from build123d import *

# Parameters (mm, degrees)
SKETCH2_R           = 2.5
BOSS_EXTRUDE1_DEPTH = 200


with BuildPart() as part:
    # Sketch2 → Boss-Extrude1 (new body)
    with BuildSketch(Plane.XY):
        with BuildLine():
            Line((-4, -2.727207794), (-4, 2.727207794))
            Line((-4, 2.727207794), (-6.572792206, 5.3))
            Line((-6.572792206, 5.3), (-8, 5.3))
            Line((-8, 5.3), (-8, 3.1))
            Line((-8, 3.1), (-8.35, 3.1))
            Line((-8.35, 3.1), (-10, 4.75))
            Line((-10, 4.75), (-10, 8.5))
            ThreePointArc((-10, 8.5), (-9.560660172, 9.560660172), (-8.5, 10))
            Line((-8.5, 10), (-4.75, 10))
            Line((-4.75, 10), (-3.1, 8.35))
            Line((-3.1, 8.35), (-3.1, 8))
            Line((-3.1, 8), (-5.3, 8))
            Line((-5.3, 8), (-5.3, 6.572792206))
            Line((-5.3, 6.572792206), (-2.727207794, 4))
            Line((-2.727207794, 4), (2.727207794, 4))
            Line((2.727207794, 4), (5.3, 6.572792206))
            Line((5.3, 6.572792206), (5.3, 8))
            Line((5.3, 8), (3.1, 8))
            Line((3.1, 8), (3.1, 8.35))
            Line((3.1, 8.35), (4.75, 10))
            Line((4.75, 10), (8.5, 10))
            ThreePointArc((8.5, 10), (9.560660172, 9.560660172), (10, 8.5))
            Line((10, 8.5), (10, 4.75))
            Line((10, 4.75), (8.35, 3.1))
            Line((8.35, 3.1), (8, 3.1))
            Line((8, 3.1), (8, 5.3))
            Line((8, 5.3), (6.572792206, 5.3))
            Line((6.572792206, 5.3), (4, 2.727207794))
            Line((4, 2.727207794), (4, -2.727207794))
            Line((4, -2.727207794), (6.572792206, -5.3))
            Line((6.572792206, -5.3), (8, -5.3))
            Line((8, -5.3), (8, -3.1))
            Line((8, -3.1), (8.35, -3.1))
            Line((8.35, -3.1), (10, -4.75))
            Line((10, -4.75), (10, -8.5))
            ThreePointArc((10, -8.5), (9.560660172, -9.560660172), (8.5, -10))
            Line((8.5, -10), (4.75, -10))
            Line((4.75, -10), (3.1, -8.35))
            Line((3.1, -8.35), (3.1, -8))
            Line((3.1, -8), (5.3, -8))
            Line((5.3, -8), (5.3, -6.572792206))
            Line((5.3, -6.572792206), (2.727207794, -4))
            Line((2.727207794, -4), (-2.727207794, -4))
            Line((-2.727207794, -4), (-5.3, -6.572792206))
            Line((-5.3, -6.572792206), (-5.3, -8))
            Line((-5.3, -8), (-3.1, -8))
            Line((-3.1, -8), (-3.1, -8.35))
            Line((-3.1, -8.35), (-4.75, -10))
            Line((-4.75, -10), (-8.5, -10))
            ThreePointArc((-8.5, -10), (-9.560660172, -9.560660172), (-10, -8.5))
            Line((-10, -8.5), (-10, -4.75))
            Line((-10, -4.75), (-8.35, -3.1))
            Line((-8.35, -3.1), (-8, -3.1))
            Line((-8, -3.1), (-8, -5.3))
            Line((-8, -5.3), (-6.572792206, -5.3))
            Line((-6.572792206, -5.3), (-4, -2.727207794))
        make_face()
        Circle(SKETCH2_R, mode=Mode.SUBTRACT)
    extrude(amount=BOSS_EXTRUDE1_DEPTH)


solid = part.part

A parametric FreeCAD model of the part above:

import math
import FreeCAD as App
import Part
import Sketcher
Q = App.Units.Quantity

doc = App.newDocument("Part")
body = doc.addObject("PartDesign::Body", "Body")

# Sketch on XY plane
sketch1 = body.newObject("Sketcher::SketchObject", "Sketch")
sketch1.AttachmentSupport = (doc.getObject("XY_Plane"), [""])
sketch1.MapMode = "FlatFace"
sketch1.addGeometry([
    Part.LineSegment(App.Vector(-4, 2.73, 0), App.Vector(-4, -2.73, 0)),  # 0
    Part.LineSegment(App.Vector(-4, -2.73, 0), App.Vector(-6.57, -5.3, 0)),  # 1
    Part.LineSegment(App.Vector(-6.57, -5.3, 0), App.Vector(-8, -5.3, 0)),  # 2
    Part.LineSegment(App.Vector(-8, -5.3, 0), App.Vector(-8, -3.1, 0)),  # 3
    Part.LineSegment(App.Vector(-8, -3.1, 0), App.Vector(-8.35, -3.1, 0)),  # 4
    Part.LineSegment(App.Vector(-8.35, -3.1, 0), App.Vector(-10, -4.75, 0)),  # 5
    Part.LineSegment(App.Vector(-10, -4.75, 0), App.Vector(-10, -8.5, 0)),  # 6
    Part.ArcOfCircle(Part.Circle(App.Vector(-8.5, -8.5, 0), App.Vector(0, 0, 1), 1.5), math.radians(180), math.radians(270)),  # 7
    Part.LineSegment(App.Vector(-8.5, -10, 0), App.Vector(-4.75, -10, 0)),  # 8
    Part.LineSegment(App.Vector(-4.75, -10, 0), App.Vector(-3.1, -8.35, 0)),  # 9
    Part.LineSegment(App.Vector(-3.1, -8.35, 0), App.Vector(-3.1, -8, 0)),  # 10
    Part.LineSegment(App.Vector(-3.1, -8, 0), App.Vector(-5.3, -8, 0)),  # 11
    Part.LineSegment(App.Vector(-5.3, -8, 0), App.Vector(-5.3, -6.57, 0)),  # 12
    Part.LineSegment(App.Vector(-5.3, -6.57, 0), App.Vector(-2.73, -4, 0)),  # 13
    Part.LineSegment(App.Vector(-2.73, -4, 0), App.Vector(2.73, -4, 0)),  # 14
    Part.LineSegment(App.Vector(2.73, -4, 0), App.Vector(5.3, -6.57, 0)),  # 15
    Part.LineSegment(App.Vector(5.3, -6.57, 0), App.Vector(5.3, -8, 0)),  # 16
    Part.LineSegment(App.Vector(5.3, -8, 0), App.Vector(3.1, -8, 0)),  # 17
    Part.LineSegment(App.Vector(3.1, -8, 0), App.Vector(3.1, -8.35, 0)),  # 18
    Part.LineSegment(App.Vector(3.1, -8.35, 0), App.Vector(4.75, -10, 0)),  # 19
    Part.LineSegment(App.Vector(4.75, -10, 0), App.Vector(8.5, -10, 0)),  # 20
    Part.ArcOfCircle(Part.Circle(App.Vector(8.5, -8.5, 0), App.Vector(0, 0, 1), 1.5), math.radians(-90), math.radians(0)),  # 21
    Part.LineSegment(App.Vector(10, -8.5, 0), App.Vector(10, -4.75, 0)),  # 22
    Part.LineSegment(App.Vector(10, -4.75, 0), App.Vector(8.35, -3.1, 0)),  # 23
    Part.LineSegment(App.Vector(8.35, -3.1, 0), App.Vector(8, -3.1, 0)),  # 24
    Part.LineSegment(App.Vector(8, -3.1, 0), App.Vector(8, -5.3, 0)),  # 25
    Part.LineSegment(App.Vector(8, -5.3, 0), App.Vector(6.57, -5.3, 0)),  # 26
    Part.LineSegment(App.Vector(6.57, -5.3, 0), App.Vector(4, -2.73, 0)),  # 27
    Part.LineSegment(App.Vector(4, -2.73, 0), App.Vector(4, 2.73, 0)),  # 28
    Part.LineSegment(App.Vector(4, 2.73, 0), App.Vector(6.57, 5.3, 0)),  # 29
    Part.LineSegment(App.Vector(6.57, 5.3, 0), App.Vector(8, 5.3, 0)),  # 30
    Part.LineSegment(App.Vector(8, 5.3, 0), App.Vector(8, 3.1, 0)),  # 31
    Part.LineSegment(App.Vector(8, 3.1, 0), App.Vector(8.35, 3.1, 0)),  # 32
    Part.LineSegment(App.Vector(8.35, 3.1, 0), App.Vector(10, 4.75, 0)),  # 33
    Part.LineSegment(App.Vector(10, 4.75, 0), App.Vector(10, 8.5, 0)),  # 34
    Part.ArcOfCircle(Part.Circle(App.Vector(8.5, 8.5, 0), App.Vector(0, 0, 1), 1.5), math.radians(0), math.radians(90)),  # 35
    Part.LineSegment(App.Vector(8.5, 10, 0), App.Vector(4.75, 10, 0)),  # 36
    Part.LineSegment(App.Vector(4.75, 10, 0), App.Vector(3.1, 8.35, 0)),  # 37
    Part.LineSegment(App.Vector(3.1, 8.35, 0), App.Vector(3.1, 8, 0)),  # 38
    Part.LineSegment(App.Vector(3.1, 8, 0), App.Vector(5.3, 8, 0)),  # 39
    Part.LineSegment(App.Vector(5.3, 8, 0), App.Vector(5.3, 6.57, 0)),  # 40
    Part.LineSegment(App.Vector(5.3, 6.57, 0), App.Vector(2.73, 4, 0)),  # 41
    Part.LineSegment(App.Vector(2.73, 4, 0), App.Vector(-2.73, 4, 0)),  # 42
    Part.LineSegment(App.Vector(-2.73, 4, 0), App.Vector(-5.3, 6.57, 0)),  # 43
    Part.LineSegment(App.Vector(-5.3, 6.57, 0), App.Vector(-5.3, 8, 0)),  # 44
    Part.LineSegment(App.Vector(-5.3, 8, 0), App.Vector(-3.1, 8, 0)),  # 45
    Part.LineSegment(App.Vector(-3.1, 8, 0), App.Vector(-3.1, 8.35, 0)),  # 46
    Part.LineSegment(App.Vector(-3.1, 8.35, 0), App.Vector(-4.75, 10, 0)),  # 47
    Part.LineSegment(App.Vector(-4.75, 10, 0), App.Vector(-8.5, 10, 0)),  # 48
    Part.ArcOfCircle(Part.Circle(App.Vector(-8.5, 8.5, 0), App.Vector(0, 0, 1), 1.5), math.radians(90), math.radians(180)),  # 49
    Part.LineSegment(App.Vector(-10, 8.5, 0), App.Vector(-10, 4.75, 0)),  # 50
    Part.LineSegment(App.Vector(-10, 4.75, 0), App.Vector(-8.35, 3.1, 0)),  # 51
    Part.LineSegment(App.Vector(-8.35, 3.1, 0), App.Vector(-8, 3.1, 0)),  # 52
    Part.LineSegment(App.Vector(-8, 3.1, 0), App.Vector(-8, 5.3, 0)),  # 53
    Part.LineSegment(App.Vector(-8, 5.3, 0), App.Vector(-6.57, 5.3, 0)),  # 54
    Part.LineSegment(App.Vector(-6.57, 5.3, 0), App.Vector(-4, 2.73, 0)),  # 55
    Part.Circle(App.Vector(0, 0, 0), App.Vector(0, 0, 1), 2.5),  # 56
], False)
sketch1.addConstraint([
    Sketcher.Constraint("Coincident", 0, 2, 1, 1),
    Sketcher.Constraint("Coincident", 1, 2, 2, 1),
    Sketcher.Constraint("Coincident", 2, 2, 3, 1),
    Sketcher.Constraint("Coincident", 3, 2, 4, 1),
    Sketcher.Constraint("Coincident", 4, 2, 5, 1),
    Sketcher.Constraint("Coincident", 5, 2, 6, 1),
    Sketcher.Constraint("Tangent", 6, 2, 7, 1),
    Sketcher.Constraint("Tangent", 7, 2, 8, 1),
    Sketcher.Constraint("Coincident", 8, 2, 9, 1),
    Sketcher.Constraint("Coincident", 9, 2, 10, 1),
    Sketcher.Constraint("Coincident", 10, 2, 11, 1),
    Sketcher.Constraint("Coincident", 11, 2, 12, 1),
    Sketcher.Constraint("Coincident", 12, 2, 13, 1),
    Sketcher.Constraint("Coincident", 13, 2, 14, 1),
    Sketcher.Constraint("Coincident", 14, 2, 15, 1),
    Sketcher.Constraint("Coincident", 15, 2, 16, 1),
    Sketcher.Constraint("Coincident", 16, 2, 17, 1),
    Sketcher.Constraint("Coincident", 17, 2, 18, 1),
    Sketcher.Constraint("Coincident", 18, 2, 19, 1),
    Sketcher.Constraint("Coincident", 19, 2, 20, 1),
    Sketcher.Constraint("Tangent", 20, 2, 21, 1),
    Sketcher.Constraint("Tangent", 21, 2, 22, 1),
    Sketcher.Constraint("Coincident", 22, 2, 23, 1),
    Sketcher.Constraint("Coincident", 23, 2, 24, 1),
    Sketcher.Constraint("Coincident", 24, 2, 25, 1),
    Sketcher.Constraint("Coincident", 25, 2, 26, 1),
    Sketcher.Constraint("Coincident", 26, 2, 27, 1),
    Sketcher.Constraint("Coincident", 27, 2, 28, 1),
    Sketcher.Constraint("Coincident", 28, 2, 29, 1),
    Sketcher.Constraint("Coincident", 29, 2, 30, 1),
    Sketcher.Constraint("Coincident", 30, 2, 31, 1),
    Sketcher.Constraint("Coincident", 31, 2, 32, 1),
    Sketcher.Constraint("Coincident", 32, 2, 33, 1),
    Sketcher.Constraint("Coincident", 33, 2, 34, 1),
    Sketcher.Constraint("Tangent", 34, 2, 35, 1),
    Sketcher.Constraint("Tangent", 35, 2, 36, 1),
    Sketcher.Constraint("Coincident", 36, 2, 37, 1),
    Sketcher.Constraint("Coincident", 37, 2, 38, 1),
    Sketcher.Constraint("Coincident", 38, 2, 39, 1),
    Sketcher.Constraint("Coincident", 39, 2, 40, 1),
    Sketcher.Constraint("Coincident", 40, 2, 41, 1),
    Sketcher.Constraint("Coincident", 41, 2, 42, 1),
    Sketcher.Constraint("Coincident", 42, 2, 43, 1),
    Sketcher.Constraint("Coincident", 43, 2, 44, 1),
    Sketcher.Constraint("Coincident", 44, 2, 45, 1),
    Sketcher.Constraint("Coincident", 45, 2, 46, 1),
    Sketcher.Constraint("Coincident", 46, 2, 47, 1),
    Sketcher.Constraint("Coincident", 47, 2, 48, 1),
    Sketcher.Constraint("Tangent", 48, 2, 49, 1),
    Sketcher.Constraint("Tangent", 49, 2, 50, 1),
    Sketcher.Constraint("Coincident", 50, 2, 51, 1),
    Sketcher.Constraint("Coincident", 51, 2, 52, 1),
    Sketcher.Constraint("Coincident", 52, 2, 53, 1),
    Sketcher.Constraint("Coincident", 53, 2, 54, 1),
    Sketcher.Constraint("Coincident", 54, 2, 55, 1),
    Sketcher.Constraint("Coincident", 55, 2, 0, 1),
    Sketcher.Constraint("Vertical", 0),
    Sketcher.Constraint("Horizontal", 2),
    Sketcher.Constraint("Vertical", 3),
    Sketcher.Constraint("Horizontal", 4),
    Sketcher.Constraint("Vertical", 6),
    Sketcher.Constraint("Horizontal", 8),
    Sketcher.Constraint("Vertical", 10),
    Sketcher.Constraint("Horizontal", 11),
    Sketcher.Constraint("Vertical", 12),
    Sketcher.Constraint("Horizontal", 14),
    Sketcher.Constraint("Vertical", 16),
    Sketcher.Constraint("Horizontal", 17),
    Sketcher.Constraint("Vertical", 18),
    Sketcher.Constraint("Horizontal", 20),
    Sketcher.Constraint("Vertical", 22),
    Sketcher.Constraint("Horizontal", 24),
    Sketcher.Constraint("Vertical", 25),
    Sketcher.Constraint("Horizontal", 26),
    Sketcher.Constraint("Vertical", 28),
    Sketcher.Constraint("Horizontal", 30),
    Sketcher.Constraint("Vertical", 31),
    Sketcher.Constraint("Horizontal", 32),
    Sketcher.Constraint("Vertical", 34),
    Sketcher.Constraint("Horizontal", 36),
    Sketcher.Constraint("Vertical", 38),
    Sketcher.Constraint("Horizontal", 39),
    Sketcher.Constraint("Vertical", 40),
    Sketcher.Constraint("Horizontal", 42),
    Sketcher.Constraint("Vertical", 44),
    Sketcher.Constraint("Horizontal", 45),
    Sketcher.Constraint("Vertical", 46),
    Sketcher.Constraint("Horizontal", 48),
    Sketcher.Constraint("Vertical", 50),
    Sketcher.Constraint("Horizontal", 52),
    Sketcher.Constraint("Vertical", 53),
    Sketcher.Constraint("Horizontal", 54),
    Sketcher.Constraint("Coincident", 56, 3, -1, 1),
    Sketcher.Constraint("Equal", 7, 21),
    Sketcher.Constraint("Equal", 21, 35),
    Sketcher.Constraint("Equal", 35, 49),
    Sketcher.Constraint("Symmetric", 7, 3, 35, 3, -1, 1),
    Sketcher.Constraint("Symmetric", 21, 3, 49, 3, -1, 1),
    Sketcher.Constraint("Symmetric", 0, 2, 28, 2, -1, 1),
    Sketcher.Constraint("Symmetric", 1, 2, 29, 2, -1, 1),
    Sketcher.Constraint("Symmetric", 3, 2, 31, 2, -1, 1),
    Sketcher.Constraint("Symmetric", 9, 2, 37, 2, -1, 1),
    Sketcher.Constraint("Symmetric", 11, 2, 39, 2, -1, 1),
    Sketcher.Constraint("Symmetric", 13, 2, 41, 2, -1, 1),
    Sketcher.Constraint("Symmetric", 15, 2, 43, 2, -1, 1),
    Sketcher.Constraint("Symmetric", 17, 2, 45, 2, -1, 1),
    Sketcher.Constraint("Symmetric", 23, 2, 51, 2, -1, 1),
    Sketcher.Constraint("Symmetric", 25, 2, 53, 2, -1, 1),
    Sketcher.Constraint("Symmetric", 7, 3, 21, 3, -2),
    Sketcher.Constraint("Symmetric", 12, 2, 15, 2, -2),
    Sketcher.Constraint("Symmetric", 10, 2, 17, 2, -2),
    Sketcher.Constraint("Symmetric", 4, 2, 23, 2, -2),
    Sketcher.Constraint("Symmetric", 2, 2, 25, 2, -2),
    Sketcher.Constraint("Parallel", 1, 5),
    Sketcher.Constraint("Parallel", 5, 9),
    Sketcher.Constraint("Parallel", 9, 13),
    Sketcher.Constraint("Perpendicular", 13, 15),
    Sketcher.Constraint("Parallel", 15, 19),
    Sketcher.Constraint("Parallel", 19, 23),
    Sketcher.Constraint("Parallel", 23, 27),
    Sketcher.Constraint("Parallel", 29, 33),
    Sketcher.Constraint("Parallel", 33, 37),
    Sketcher.Constraint("Parallel", 37, 41),
    Sketcher.Constraint("Perpendicular", 41, 43),
    Sketcher.Constraint("Parallel", 43, 47),
    Sketcher.Constraint("Parallel", 47, 51),
    Sketcher.Constraint("Parallel", 51, 55),
    Sketcher.Constraint("Horizontal", 9, 2, 18, 2),
    Sketcher.Constraint("Horizontal", 5, 2, 22, 2),
    Sketcher.Constraint("Horizontal", 0, 2, 27, 2),
    Sketcher.Constraint("Horizontal", 37, 2, 46, 2),
    Sketcher.Constraint("Horizontal", 33, 2, 50, 2),
    Sketcher.Constraint("Horizontal", 28, 2, 55, 2),
    Sketcher.Constraint("Equal", 42, 0),
    Sketcher.Constraint("Equal", 45, 3),
    Sketcher.Constraint("Equal", 48, 6),
    Sketcher.Constraint("Equal", 52, 10),
    Sketcher.Constraint("Equal", 54, 12),
    Sketcher.Constraint("Equal", 5, 9),
    Sketcher.Constraint("Equal", 1, 13),
    Sketcher.Constraint("Diameter", 56, Q("5 mm")),
    Sketcher.Constraint("Radius", 7, Q("1.5 mm")),
    Sketcher.Constraint("DistanceX", 11, 2, 11, 1, Q("2.2 mm")),
    Sketcher.Constraint("DistanceX", 0, 2, -1, 1, Q("4 mm")),
    Sketcher.Constraint("DistanceX", 2, 2, -1, 1, Q("8 mm")),
    Sketcher.Constraint("DistanceX", 5, 2, -1, 1, Q("10 mm")),
    Sketcher.Constraint("DistanceX", 4, 2, 4, 1, Q("0.35 mm")),
    Sketcher.Constraint("DistanceX", 8, 1, 8, 2, Q("3.75 mm")),
    Sketcher.Constraint("DistanceX", 2, 2, 2, 1, Q("1.427208 mm")),
])
pad1 = body.newObject("PartDesign::Pad", "Pad")
pad1.Profile = sketch1
pad1.Length = 200

doc.recompute()
